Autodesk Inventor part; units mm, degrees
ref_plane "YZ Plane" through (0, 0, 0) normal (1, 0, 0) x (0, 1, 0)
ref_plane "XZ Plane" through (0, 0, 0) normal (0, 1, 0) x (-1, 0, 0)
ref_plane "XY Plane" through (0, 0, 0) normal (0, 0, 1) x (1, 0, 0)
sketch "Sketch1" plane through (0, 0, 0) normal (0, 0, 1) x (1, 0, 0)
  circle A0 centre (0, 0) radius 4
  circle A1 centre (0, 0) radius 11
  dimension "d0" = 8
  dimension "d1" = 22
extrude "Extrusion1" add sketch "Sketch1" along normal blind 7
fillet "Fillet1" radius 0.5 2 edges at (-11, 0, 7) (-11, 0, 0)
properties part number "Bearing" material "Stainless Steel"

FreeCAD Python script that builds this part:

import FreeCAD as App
import Part
import Sketcher

V = App.Vector


def edges_at(feature, points):
    """Names of the edges that pass closest to the given points."""
    edges = feature.Shape.Edges
    near = lambda p: min(range(len(edges)), key=lambda i: edges[i].distToShape(Part.Vertex(*p))[0])
    return sorted({f"Edge{near(p) + 1}" for p in points})

doc = App.newDocument("Part")
params = doc.addObject("Spreadsheet::Sheet", "Params")
for row, (alias, value) in enumerate([
    ("sketch1_diameter", "22 mm"),
    ("sketch1_diameter2", "8 mm"),
    ("pad1_length", "7 mm"),
    ("fillet_radius", "0.5 mm"),
], start=1):
    params.set(f"A{row}", alias)
    params.set(f"B{row}", "=" + value)
    params.setAlias(f"B{row}", alias)

body = doc.addObject("PartDesign::Body", "Body")

sketch1 = body.newObject("Sketcher::SketchObject", "Sketch")
sketch1.AttachmentSupport = (doc.getObject("XY_Plane"), [""])
sketch1.MapMode = "FlatFace"
sketch1.addGeometry(Part.Circle(V(0, 0, 0), V(0, 0, 1), 11), False)
sketch1.addGeometry(Part.Circle(V(0, 0, 0), V(0, 0, 1), 4), False)
sketch1.addConstraint(Sketcher.Constraint("Coincident", 0, 3, -1, 1))
sketch1.addConstraint(Sketcher.Constraint("Coincident", 1, 3, -1, 1))
sketch1.addConstraint(Sketcher.Constraint("Diameter", 0, 22.0))
sketch1.addConstraint(Sketcher.Constraint("Diameter", 1, 8.0))
sketch1.setExpression("Constraints[2]", "Params.sketch1_diameter")
sketch1.setExpression("Constraints[3]", "Params.sketch1_diameter2")
pad1 = body.newObject("PartDesign::Pad", "Pad")
pad1.Profile = sketch1
pad1.setExpression("Length", "Params.pad1_length")
doc.recompute()

fillet = body.newObject("PartDesign::Fillet", "Fillet")
fillet.Base = (pad1, edges_at(pad1, [(-11, 0, 7), (-11, 0, 0)]))
fillet.setExpression("Radius", "Params.fillet_radius")

doc.recompute()
